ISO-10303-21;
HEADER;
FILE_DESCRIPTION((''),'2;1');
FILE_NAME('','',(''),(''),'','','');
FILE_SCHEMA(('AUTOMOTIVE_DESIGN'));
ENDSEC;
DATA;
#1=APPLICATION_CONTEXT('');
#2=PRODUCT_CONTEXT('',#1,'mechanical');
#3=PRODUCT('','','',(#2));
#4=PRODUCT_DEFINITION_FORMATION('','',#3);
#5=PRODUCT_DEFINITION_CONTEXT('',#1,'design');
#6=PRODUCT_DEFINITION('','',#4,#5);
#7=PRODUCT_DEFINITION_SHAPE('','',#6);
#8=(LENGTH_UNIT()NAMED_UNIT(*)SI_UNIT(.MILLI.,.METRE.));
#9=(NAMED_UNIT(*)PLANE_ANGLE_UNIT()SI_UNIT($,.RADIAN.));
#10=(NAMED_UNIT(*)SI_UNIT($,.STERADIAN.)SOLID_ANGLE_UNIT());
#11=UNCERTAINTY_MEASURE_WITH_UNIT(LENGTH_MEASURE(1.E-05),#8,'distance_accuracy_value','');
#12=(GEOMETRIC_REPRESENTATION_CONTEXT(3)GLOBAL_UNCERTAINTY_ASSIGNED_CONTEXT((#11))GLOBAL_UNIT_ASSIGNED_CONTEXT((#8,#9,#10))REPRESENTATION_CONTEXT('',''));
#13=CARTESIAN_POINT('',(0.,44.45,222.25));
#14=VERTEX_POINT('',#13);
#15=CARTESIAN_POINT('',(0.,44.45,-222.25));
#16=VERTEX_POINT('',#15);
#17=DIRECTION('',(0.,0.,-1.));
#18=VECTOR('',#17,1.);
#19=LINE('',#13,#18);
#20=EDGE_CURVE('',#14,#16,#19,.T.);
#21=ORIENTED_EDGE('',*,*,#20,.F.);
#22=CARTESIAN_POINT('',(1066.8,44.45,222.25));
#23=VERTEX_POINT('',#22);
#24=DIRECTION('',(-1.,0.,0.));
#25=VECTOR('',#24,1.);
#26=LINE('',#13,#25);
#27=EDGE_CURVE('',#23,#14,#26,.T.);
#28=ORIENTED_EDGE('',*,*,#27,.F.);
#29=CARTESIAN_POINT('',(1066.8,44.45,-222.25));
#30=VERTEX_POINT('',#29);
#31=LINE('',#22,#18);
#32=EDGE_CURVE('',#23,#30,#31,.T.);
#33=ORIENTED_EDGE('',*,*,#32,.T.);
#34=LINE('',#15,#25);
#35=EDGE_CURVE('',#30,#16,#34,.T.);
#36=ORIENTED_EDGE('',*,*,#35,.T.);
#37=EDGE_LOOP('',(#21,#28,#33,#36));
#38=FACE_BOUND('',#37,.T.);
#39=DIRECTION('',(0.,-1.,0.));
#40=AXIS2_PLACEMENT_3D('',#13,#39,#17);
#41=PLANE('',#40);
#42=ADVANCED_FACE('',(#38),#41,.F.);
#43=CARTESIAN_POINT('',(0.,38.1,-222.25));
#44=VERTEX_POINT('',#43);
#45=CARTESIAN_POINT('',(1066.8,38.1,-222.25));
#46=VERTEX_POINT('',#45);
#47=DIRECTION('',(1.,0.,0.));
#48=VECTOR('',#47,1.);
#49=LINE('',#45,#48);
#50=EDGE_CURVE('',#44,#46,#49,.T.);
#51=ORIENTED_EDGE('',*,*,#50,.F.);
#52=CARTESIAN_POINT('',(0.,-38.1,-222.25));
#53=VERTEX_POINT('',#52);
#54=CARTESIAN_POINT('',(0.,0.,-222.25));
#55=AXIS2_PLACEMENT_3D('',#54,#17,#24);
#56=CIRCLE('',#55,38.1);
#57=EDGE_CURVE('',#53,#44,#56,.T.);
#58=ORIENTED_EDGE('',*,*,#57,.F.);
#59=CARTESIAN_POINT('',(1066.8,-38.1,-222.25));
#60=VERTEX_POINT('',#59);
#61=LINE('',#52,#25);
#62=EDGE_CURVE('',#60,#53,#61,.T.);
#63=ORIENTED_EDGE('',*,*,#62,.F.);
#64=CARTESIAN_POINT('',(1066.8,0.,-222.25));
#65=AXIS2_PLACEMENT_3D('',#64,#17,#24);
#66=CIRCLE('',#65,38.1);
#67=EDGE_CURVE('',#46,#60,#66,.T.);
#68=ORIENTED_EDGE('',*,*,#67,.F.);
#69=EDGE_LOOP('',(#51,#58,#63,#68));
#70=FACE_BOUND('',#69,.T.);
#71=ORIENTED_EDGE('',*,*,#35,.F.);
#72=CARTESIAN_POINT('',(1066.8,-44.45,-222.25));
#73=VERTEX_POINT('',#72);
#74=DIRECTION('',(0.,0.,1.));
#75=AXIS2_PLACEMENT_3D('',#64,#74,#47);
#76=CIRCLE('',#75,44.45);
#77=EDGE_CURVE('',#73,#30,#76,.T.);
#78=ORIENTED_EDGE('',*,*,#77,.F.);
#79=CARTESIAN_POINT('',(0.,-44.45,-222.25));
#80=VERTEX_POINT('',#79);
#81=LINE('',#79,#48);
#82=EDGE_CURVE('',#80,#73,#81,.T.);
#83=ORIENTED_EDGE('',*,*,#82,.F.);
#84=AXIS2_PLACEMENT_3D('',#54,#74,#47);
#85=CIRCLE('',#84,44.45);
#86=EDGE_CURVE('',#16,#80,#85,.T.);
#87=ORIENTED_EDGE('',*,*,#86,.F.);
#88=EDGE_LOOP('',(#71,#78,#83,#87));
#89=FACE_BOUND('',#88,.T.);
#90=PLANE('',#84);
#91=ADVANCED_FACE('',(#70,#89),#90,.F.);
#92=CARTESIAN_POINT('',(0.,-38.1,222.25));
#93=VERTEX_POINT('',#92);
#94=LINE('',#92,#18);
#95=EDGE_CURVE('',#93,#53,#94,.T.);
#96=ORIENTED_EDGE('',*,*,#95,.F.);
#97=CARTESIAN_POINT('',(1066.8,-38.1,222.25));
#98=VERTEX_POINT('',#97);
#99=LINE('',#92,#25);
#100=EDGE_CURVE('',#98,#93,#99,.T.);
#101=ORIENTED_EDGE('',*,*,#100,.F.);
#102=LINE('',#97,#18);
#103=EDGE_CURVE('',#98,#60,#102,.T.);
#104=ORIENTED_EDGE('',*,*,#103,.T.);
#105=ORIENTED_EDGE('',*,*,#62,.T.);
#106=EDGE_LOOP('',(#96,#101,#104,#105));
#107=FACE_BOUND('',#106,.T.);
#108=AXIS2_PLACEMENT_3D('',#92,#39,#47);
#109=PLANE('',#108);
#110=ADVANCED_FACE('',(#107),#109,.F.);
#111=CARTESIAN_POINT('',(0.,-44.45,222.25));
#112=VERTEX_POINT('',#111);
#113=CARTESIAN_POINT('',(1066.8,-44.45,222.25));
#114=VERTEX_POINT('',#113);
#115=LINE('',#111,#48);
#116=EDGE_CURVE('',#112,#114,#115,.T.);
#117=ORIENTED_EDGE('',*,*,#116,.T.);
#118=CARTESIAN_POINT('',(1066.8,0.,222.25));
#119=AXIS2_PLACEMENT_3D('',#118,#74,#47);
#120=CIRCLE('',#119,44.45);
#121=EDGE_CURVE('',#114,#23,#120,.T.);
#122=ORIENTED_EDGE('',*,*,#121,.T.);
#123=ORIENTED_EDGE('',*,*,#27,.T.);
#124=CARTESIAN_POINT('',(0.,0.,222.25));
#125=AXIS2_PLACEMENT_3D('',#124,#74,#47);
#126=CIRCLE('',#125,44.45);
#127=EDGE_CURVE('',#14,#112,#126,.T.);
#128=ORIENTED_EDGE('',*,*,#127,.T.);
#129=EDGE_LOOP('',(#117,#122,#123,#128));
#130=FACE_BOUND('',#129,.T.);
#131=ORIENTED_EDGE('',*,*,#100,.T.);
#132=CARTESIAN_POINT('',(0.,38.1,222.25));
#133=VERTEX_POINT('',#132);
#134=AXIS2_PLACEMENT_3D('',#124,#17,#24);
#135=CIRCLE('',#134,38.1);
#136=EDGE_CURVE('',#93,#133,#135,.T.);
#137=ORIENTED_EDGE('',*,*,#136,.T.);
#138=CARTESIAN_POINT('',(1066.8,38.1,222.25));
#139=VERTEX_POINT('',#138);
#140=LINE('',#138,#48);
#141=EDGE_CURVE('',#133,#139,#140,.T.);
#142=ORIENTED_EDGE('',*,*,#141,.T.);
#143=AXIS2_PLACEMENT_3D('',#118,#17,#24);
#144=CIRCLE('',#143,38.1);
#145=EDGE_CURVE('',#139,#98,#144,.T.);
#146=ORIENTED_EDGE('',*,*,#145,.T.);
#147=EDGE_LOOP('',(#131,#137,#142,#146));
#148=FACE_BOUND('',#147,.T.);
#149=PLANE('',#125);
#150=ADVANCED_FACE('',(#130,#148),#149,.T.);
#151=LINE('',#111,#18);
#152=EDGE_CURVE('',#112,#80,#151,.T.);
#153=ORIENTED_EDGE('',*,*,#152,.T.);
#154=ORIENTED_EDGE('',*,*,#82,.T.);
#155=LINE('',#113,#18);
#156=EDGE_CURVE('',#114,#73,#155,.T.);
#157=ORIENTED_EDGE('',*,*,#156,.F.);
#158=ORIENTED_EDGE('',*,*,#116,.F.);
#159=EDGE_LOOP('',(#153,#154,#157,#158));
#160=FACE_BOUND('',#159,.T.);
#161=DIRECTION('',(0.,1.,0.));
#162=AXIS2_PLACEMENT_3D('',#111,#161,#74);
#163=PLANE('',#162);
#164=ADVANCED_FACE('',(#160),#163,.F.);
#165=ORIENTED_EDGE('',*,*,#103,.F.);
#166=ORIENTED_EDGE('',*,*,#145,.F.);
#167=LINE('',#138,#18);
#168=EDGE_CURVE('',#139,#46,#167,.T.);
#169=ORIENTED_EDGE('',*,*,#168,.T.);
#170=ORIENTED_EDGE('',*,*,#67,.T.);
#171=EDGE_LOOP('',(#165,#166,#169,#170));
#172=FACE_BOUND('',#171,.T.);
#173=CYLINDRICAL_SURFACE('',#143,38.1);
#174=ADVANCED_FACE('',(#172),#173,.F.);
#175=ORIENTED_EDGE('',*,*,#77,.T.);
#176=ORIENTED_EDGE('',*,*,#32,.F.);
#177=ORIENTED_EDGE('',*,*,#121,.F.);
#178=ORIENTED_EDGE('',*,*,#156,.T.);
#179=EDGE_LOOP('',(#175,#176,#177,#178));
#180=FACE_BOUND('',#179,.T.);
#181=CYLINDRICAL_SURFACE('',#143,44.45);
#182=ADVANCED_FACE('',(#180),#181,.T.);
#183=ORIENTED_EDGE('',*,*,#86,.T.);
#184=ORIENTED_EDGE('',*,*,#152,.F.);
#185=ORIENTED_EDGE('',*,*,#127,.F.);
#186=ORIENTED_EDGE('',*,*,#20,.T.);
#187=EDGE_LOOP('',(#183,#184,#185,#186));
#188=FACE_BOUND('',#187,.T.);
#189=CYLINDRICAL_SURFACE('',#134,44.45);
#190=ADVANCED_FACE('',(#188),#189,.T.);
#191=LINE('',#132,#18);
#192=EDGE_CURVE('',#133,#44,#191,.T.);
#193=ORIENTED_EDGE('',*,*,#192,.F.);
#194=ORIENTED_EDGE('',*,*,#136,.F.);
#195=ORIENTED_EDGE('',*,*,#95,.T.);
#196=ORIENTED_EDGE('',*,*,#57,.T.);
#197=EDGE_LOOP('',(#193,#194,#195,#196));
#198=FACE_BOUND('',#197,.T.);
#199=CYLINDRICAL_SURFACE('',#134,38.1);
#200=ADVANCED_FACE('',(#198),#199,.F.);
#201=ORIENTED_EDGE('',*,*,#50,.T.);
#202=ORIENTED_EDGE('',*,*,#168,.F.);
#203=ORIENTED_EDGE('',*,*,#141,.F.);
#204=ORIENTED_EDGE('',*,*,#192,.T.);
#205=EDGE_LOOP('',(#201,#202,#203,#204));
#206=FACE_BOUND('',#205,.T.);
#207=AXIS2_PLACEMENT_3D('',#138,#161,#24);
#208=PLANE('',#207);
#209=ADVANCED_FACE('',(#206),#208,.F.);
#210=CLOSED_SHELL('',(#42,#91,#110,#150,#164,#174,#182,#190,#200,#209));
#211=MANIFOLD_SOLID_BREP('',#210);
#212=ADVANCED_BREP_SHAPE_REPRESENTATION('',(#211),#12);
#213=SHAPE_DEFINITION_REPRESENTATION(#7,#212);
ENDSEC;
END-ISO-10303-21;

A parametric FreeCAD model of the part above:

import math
import FreeCAD as App
import Part
import Sketcher
from FreeCAD import Vector
Q = App.Units.Quantity

doc = App.newDocument("Part")
params = doc.addObject("Spreadsheet::Sheet", "Params")
for row, (alias, value) in enumerate([
    ("sketch1_width", "42 in"),
    ("sketch1_radius", "1.75 in"),
    ("pad1_length", "17.5 in"),
    ("sketch2_radius", "1.5 in"),
    ("sketch2_width", "42 in"),
], start=1):
    params.set(f"A{row}", alias)
    params.set(f"B{row}", "=" + value)
    params.setAlias(f"B{row}", alias)

body = doc.addObject("PartDesign::Body", "Body")

sketch1 = body.newObject("Sketcher::SketchObject", "Sketch")
sketch1.AttachmentSupport = (doc.getObject("XY_Plane"), [""])
sketch1.MapMode = "FlatFace"
sketch1.addGeometry([
    Part.LineSegment(Vector(1067, 44, 0), Vector(0, 44, 0)),
    Part.ArcOfCircle(Part.Circle(Vector(0, 0, 0), Vector(0, 0, 1), 44), math.radians(90), math.radians(270)),
    Part.LineSegment(Vector(0, -44, 0), Vector(1067, -44, 0)),
    Part.ArcOfCircle(Part.Circle(Vector(1067, 0, 0), Vector(0, 0, 1), 44), math.radians(-90), math.radians(90)),
], False)
sketch1.addConstraint([
    Sketcher.Constraint("Tangent", 0, 2, 1, 1),
    Sketcher.Constraint("Tangent", 1, 2, 2, 1),
    Sketcher.Constraint("Tangent", 2, 2, 3, 1),
    Sketcher.Constraint("Tangent", 3, 2, 0, 1),
    Sketcher.Constraint("Horizontal", 0),
    Sketcher.Constraint("Horizontal", 2),
    Sketcher.Constraint("Coincident", 1, 3, -1, 1),
    Sketcher.Constraint("DistanceX", 0, 2, 0, 1, Q("42 in")),
    Sketcher.Constraint("Radius", 1, Q("1.75 in")),
])
sketch1.setExpression("Constraints[7]", "Params.sketch1_width")
sketch1.setExpression("Constraints[8]", "Params.sketch1_radius")
pad1 = body.newObject("PartDesign::Pad", "Pad")
pad1.Profile = sketch1
pad1.setExpression("Length", "Params.pad1_length")
pad1.Midplane = True

sketch2 = body.newObject("Sketcher::SketchObject", "Sketch001")
sketch2.AttachmentSupport = (doc.getObject("XY_Plane"), [""])
sketch2.MapMode = "FlatFace"
sketch2.AttachmentOffset = App.Placement(Vector(0, 0, -8.75 * 25.4), App.Rotation())
sketch2.addGeometry([
    Part.LineSegment(Vector(0, 38, 0), Vector(1067, 38, 0)),
    Part.ArcOfCircle(Part.Circle(Vector(1067, 0, 0), Vector(0, 0, 1), 38), math.radians(-90), math.radians(90)),
    Part.LineSegment(Vector(1067, -38, 0), Vector(0, -38, 0)),
    Part.ArcOfCircle(Part.Circle(Vector(0, 0, 0), Vector(0, 0, 1), 38), math.radians(90), math.radians(270)),
], False)
sketch2.addConstraint([
    Sketcher.Constraint("Tangent", 0, 2, 1, 2),
    Sketcher.Constraint("Tangent", 1, 1, 2, 1),
    Sketcher.Constraint("Tangent", 2, 2, 3, 2),
    Sketcher.Constraint("Tangent", 3, 1, 0, 1),
    Sketcher.Constraint("Horizontal", 0),
    Sketcher.Constraint("Horizontal", 2),
    Sketcher.Constraint("Coincident", 3, 3, -1, 1),
    Sketcher.Constraint("Radius", 1, Q("1.5 in")),
    Sketcher.Constraint("DistanceX", 0, 1, 0, 2, Q("42 in")),
])
sketch2.setExpression("Constraints[7]", "Params.sketch2_radius")
sketch2.setExpression("Constraints[8]", "Params.sketch2_width")
pocket1 = body.newObject("PartDesign::Pocket", "Pocket")
pocket1.Profile = sketch2
pocket1.Type = "ThroughAll"
pocket1.Midplane = True

doc.recompute()
